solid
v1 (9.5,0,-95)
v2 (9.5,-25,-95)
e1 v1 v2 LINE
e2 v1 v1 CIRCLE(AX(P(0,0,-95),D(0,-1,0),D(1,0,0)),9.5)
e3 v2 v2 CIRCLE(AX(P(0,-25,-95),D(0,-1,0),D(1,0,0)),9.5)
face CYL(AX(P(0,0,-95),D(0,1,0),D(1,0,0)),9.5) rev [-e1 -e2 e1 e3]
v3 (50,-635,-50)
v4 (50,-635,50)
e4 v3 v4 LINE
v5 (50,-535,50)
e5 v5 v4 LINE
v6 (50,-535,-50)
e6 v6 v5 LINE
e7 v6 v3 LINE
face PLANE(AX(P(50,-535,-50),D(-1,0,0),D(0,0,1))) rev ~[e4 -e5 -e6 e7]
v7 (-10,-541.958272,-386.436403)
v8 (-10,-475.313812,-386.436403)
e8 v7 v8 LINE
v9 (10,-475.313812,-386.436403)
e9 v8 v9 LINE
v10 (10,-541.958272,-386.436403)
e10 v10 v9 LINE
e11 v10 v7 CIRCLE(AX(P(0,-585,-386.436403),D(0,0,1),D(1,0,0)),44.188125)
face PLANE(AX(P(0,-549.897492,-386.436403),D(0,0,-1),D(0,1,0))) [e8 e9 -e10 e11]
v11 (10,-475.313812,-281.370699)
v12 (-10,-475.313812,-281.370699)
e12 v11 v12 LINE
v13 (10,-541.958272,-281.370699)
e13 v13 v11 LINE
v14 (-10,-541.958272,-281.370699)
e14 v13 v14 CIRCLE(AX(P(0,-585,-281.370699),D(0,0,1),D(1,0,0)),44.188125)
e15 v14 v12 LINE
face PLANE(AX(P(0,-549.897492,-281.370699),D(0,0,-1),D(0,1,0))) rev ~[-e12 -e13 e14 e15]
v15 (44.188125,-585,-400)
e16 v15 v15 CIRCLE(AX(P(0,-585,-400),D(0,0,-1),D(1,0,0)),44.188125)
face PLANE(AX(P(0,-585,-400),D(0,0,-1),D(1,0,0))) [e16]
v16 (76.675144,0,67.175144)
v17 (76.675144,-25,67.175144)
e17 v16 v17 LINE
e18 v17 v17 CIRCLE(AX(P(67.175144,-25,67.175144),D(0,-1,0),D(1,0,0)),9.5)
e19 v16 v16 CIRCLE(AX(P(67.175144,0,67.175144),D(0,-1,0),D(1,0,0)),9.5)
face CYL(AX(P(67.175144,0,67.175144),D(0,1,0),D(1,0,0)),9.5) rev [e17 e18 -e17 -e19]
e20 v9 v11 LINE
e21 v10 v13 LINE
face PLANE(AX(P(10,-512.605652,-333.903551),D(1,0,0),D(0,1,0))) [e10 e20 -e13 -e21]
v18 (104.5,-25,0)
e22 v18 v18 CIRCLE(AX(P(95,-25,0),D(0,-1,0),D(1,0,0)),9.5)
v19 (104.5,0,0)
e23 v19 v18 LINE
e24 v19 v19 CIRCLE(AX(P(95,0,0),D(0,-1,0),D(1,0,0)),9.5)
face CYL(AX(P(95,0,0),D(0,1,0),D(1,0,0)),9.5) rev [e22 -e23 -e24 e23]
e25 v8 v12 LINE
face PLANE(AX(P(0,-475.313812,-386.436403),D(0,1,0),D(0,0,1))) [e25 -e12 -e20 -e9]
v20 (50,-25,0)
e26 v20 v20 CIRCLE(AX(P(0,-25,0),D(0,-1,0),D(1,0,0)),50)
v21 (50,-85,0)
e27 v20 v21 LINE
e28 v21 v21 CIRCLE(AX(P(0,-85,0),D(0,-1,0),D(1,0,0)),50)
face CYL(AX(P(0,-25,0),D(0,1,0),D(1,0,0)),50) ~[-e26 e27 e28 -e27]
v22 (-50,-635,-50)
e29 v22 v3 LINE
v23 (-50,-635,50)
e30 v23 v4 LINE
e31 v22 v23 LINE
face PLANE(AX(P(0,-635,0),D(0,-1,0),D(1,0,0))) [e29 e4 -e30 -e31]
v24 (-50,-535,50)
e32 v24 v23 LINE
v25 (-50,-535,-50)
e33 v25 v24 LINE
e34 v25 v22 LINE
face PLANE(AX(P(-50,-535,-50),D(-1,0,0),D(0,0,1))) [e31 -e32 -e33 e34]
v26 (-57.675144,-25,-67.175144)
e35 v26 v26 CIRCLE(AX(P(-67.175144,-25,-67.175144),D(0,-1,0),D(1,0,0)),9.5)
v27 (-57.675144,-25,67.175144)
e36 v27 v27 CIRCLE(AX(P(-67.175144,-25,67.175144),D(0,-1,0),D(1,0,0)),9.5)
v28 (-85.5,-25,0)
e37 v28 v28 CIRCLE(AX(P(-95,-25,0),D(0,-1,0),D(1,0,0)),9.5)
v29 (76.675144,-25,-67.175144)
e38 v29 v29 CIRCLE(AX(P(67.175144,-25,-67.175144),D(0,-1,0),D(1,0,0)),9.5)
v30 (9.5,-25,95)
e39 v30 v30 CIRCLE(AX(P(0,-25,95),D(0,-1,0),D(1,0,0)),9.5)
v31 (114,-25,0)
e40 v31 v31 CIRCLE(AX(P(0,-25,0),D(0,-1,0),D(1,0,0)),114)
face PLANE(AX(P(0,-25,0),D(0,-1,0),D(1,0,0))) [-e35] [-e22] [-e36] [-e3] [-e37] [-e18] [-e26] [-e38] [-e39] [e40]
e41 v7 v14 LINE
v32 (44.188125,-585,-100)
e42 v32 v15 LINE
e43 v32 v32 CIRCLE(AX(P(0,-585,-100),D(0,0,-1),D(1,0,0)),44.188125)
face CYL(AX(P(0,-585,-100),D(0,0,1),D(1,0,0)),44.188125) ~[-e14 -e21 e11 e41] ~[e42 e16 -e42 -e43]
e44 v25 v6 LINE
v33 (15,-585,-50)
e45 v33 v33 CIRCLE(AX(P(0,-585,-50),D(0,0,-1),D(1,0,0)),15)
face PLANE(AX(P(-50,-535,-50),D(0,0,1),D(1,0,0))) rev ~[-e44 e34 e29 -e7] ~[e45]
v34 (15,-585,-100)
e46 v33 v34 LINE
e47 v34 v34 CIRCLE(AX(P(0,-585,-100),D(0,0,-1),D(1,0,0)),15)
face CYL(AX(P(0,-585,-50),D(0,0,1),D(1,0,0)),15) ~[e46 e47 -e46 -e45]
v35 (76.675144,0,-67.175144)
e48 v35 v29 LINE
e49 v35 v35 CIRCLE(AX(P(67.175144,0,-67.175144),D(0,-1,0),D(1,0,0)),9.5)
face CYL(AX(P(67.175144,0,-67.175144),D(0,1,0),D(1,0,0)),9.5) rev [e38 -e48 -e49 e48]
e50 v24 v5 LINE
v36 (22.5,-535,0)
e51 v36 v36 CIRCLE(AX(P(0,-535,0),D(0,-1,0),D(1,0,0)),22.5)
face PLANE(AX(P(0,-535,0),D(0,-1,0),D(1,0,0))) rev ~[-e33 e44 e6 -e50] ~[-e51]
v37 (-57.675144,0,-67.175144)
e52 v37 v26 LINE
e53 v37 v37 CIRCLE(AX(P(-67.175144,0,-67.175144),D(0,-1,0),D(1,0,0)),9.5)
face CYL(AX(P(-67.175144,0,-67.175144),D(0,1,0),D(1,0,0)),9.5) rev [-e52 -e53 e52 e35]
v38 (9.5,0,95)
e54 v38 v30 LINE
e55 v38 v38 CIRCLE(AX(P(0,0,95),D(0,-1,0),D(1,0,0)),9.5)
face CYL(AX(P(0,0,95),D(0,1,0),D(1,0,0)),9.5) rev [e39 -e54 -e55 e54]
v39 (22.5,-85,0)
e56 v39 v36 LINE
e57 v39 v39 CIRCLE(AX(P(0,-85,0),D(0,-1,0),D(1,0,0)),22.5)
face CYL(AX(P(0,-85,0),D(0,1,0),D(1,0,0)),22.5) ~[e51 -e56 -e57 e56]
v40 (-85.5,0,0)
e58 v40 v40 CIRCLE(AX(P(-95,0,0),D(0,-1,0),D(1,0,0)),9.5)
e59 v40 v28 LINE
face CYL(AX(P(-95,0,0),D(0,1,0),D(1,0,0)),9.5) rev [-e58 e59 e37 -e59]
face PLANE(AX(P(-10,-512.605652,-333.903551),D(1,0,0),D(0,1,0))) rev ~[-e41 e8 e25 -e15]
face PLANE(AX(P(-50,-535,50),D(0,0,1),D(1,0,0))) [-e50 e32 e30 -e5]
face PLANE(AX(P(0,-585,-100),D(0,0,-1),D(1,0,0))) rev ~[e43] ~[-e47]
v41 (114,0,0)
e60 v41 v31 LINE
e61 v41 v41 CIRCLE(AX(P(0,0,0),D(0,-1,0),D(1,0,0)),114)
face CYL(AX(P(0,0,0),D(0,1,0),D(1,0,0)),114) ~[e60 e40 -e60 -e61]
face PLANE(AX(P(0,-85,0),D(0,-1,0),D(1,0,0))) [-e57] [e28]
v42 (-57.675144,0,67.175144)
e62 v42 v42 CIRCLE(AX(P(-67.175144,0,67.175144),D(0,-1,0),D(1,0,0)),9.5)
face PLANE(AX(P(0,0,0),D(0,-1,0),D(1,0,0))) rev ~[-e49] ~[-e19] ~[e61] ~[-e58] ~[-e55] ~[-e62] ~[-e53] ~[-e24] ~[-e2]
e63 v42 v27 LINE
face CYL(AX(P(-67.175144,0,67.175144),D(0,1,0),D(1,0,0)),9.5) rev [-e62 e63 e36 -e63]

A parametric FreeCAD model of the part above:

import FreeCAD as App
import Part
import Sketcher
from FreeCAD import Vector
Q = App.Units.Quantity

doc = App.newDocument("Part")
body = doc.addObject("PartDesign::Body", "Body")

# Sketch on XZ plane
sketch1 = body.newObject("Sketcher::SketchObject", "Sketch")
sketch1.AttachmentSupport = (doc.getObject("XZ_Plane"), [""])
sketch1.MapMode = "FlatFace"
sketch1.addGeometry(Part.Circle(Vector(0, 0, 0), Vector(0, 0, 1), 114), False)
sketch1.addGeometry(Part.Circle(Vector(-67.175144, -67.175144, 0), Vector(0, 0, 1), 9.5), False)
sketch1.addGeometry(Part.Circle(Vector(0, -95, 0), Vector(0, 0, 1), 9.5), False)
sketch1.addGeometry(Part.Circle(Vector(67.175144, -67.175144, 0), Vector(0, 0, 1), 9.5), False)
sketch1.addGeometry(Part.Circle(Vector(-95, 0, 0), Vector(0, 0, 1), 9.5), False)
sketch1.addGeometry(Part.Circle(Vector(-67.175144, 67.175144, 0), Vector(0, 0, 1), 9.5), False)
sketch1.addGeometry(Part.Circle(Vector(95, 0, 0), Vector(0, 0, 1), 9.5), False)
sketch1.addGeometry(Part.Circle(Vector(0, 95, 0), Vector(0, 0, 1), 9.5), False)
sketch1.addGeometry(Part.Circle(Vector(67.175144, 67.175144, 0), Vector(0, 0, 1), 9.5), False)
sketch1.addConstraint(Sketcher.Constraint("Coincident", 0, 3, -1, 1))
sketch1.addConstraint(Sketcher.Constraint("Equal", 1, 2))
sketch1.addConstraint(Sketcher.Constraint("Equal", 2, 3))
sketch1.addConstraint(Sketcher.Constraint("Equal", 3, 4))
sketch1.addConstraint(Sketcher.Constraint("Equal", 4, 5))
sketch1.addConstraint(Sketcher.Constraint("Equal", 5, 6))
sketch1.addConstraint(Sketcher.Constraint("Equal", 6, 7))
sketch1.addConstraint(Sketcher.Constraint("Equal", 7, 8))
sketch1.addConstraint(Sketcher.Constraint("Symmetric", 3, 3, 5, 3, -1, 1))
sketch1.addConstraint(Sketcher.Constraint("Symmetric", 4, 3, 6, 3, -1, 1))
sketch1.addConstraint(Sketcher.Constraint("Symmetric", 2, 3, 7, 3, -1, 1))
sketch1.addConstraint(Sketcher.Constraint("Symmetric", 1, 3, 8, 3, -1, 1))
sketch1.addConstraint(Sketcher.Constraint("Symmetric", 1, 3, 3, 3, -2))
sketch1.addConstraint(Sketcher.Constraint("PointOnObject", 2, 3, -2))
sketch1.addConstraint(Sketcher.Constraint("PointOnObject", 4, 3, -1))
sketch1.addConstraint(Sketcher.Constraint("Diameter", 0, Q("228 mm")))
sketch1.addConstraint(Sketcher.Constraint("Diameter", 1, Q("19 mm")))
sketch1.addConstraint(Sketcher.Constraint("DistanceY", 2, 3, -1, 1, Q("95 mm")))
sketch1.addConstraint(Sketcher.Constraint("DistanceX", 4, 3, -1, 1, Q("95 mm")))
sketch1.addConstraint(Sketcher.Constraint("DistanceX", 1, 3, 3, 3, Q("134.350288 mm")))
sketch1.addConstraint(Sketcher.Constraint("DistanceY", 1, 3, 5, 3, Q("134.350288 mm")))
pad1 = body.newObject("PartDesign::Pad", "Pad")
pad1.Profile = sketch1
pad1.Length = 25

# Sketch on XZ plane
sketch2 = body.newObject("Sketcher::SketchObject", "Sketch001")
sketch2.AttachmentSupport = (doc.getObject("XZ_Plane"), [""])
sketch2.MapMode = "FlatFace"
sketch2.AttachmentOffset = App.Placement(Vector(0, 0, 25), App.Rotation())
sketch2.addGeometry(Part.Circle(Vector(0, 0, 0), Vector(0, 0, 1), 50), False)
sketch2.addConstraint(Sketcher.Constraint("Coincident", 0, 3, -1, 1))
sketch2.addConstraint(Sketcher.Constraint("Diameter", 0, Q("100 mm")))
pad2 = body.newObject("PartDesign::Pad", "Pad001")
pad2.Profile = sketch2
pad2.Length = 60

# Sketch on XZ plane
sketch3 = body.newObject("Sketcher::SketchObject", "Sketch002")
sketch3.AttachmentSupport = (doc.getObject("XZ_Plane"), [""])
sketch3.MapMode = "FlatFace"
sketch3.AttachmentOffset = App.Placement(Vector(0, 0, 85), App.Rotation())
sketch3.addGeometry(Part.Circle(Vector(0, 0, 0), Vector(0, 0, 1), 22.5), False)
sketch3.addConstraint(Sketcher.Constraint("Coincident", 0, 3, -1, 1))
sketch3.addConstraint(Sketcher.Constraint("Diameter", 0, Q("45 mm")))
pad3 = body.newObject("PartDesign::Pad", "Pad002")
pad3.Profile = sketch3
pad3.Length = 450

# Sketch on XZ plane
sketch4 = body.newObject("Sketcher::SketchObject", "Sketch003")
sketch4.AttachmentSupport = (doc.getObject("XZ_Plane"), [""])
sketch4.MapMode = "FlatFace"
sketch4.AttachmentOffset = App.Placement(Vector(0, 0, 535), App.Rotation())
sketch4.addGeometry(Part.LineSegment(Vector(-50, 50, 0), Vector(-50, -50, 0)), False)
sketch4.addGeometry(Part.LineSegment(Vector(-50, -50, 0), Vector(50, -50, 0)), False)
sketch4.addGeometry(Part.LineSegment(Vector(50, -50, 0), Vector(50, 50, 0)), False)
sketch4.addGeometry(Part.LineSegment(Vector(50, 50, 0), Vector(-50, 50, 0)), False)
sketch4.addConstraint(Sketcher.Constraint("Coincident", 0, 2, 1, 1))
sketch4.addConstraint(Sketcher.Constraint("Coincident", 1, 2, 2, 1))
sketch4.addConstraint(Sketcher.Constraint("Coincident", 2, 2, 3, 1))
sketch4.addConstraint(Sketcher.Constraint("Coincident", 3, 2, 0, 1))
sketch4.addConstraint(Sketcher.Constraint("Vertical", 0))
sketch4.addConstraint(Sketcher.Constraint("Horizontal", 1))
sketch4.addConstraint(Sketcher.Constraint("Vertical", 2))
sketch4.addConstraint(Sketcher.Constraint("Horizontal", 3))
sketch4.addConstraint(Sketcher.Constraint("Symmetric", 0, 2, 2, 2, -1, 1))
sketch4.addConstraint(Sketcher.Constraint("Equal", 3, 0))
sketch4.addConstraint(Sketcher.Constraint("DistanceX", 1, 1, 1, 2, Q("100 mm")))
pad4 = body.newObject("PartDesign::Pad", "Pad003")
pad4.Profile = sketch4
pad4.Length = 100

# Sketch on XY plane
sketch5 = body.newObject("Sketcher::SketchObject", "Sketch004")
sketch5.AttachmentSupport = (doc.getObject("XY_Plane"), [""])
sketch5.MapMode = "FlatFace"
sketch5.AttachmentOffset = App.Placement(Vector(0, 0, -50), App.Rotation())
sketch5.addGeometry(Part.Circle(Vector(0, -585, 0), Vector(0, 0, 1), 15), False)
sketch5.addConstraint(Sketcher.Constraint("PointOnObject", 0, 3, -2))
sketch5.addConstraint(Sketcher.Constraint("Diameter", 0, Q("30 mm")))
sketch5.addConstraint(Sketcher.Constraint("DistanceY", 0, 3, -1, 1, Q("585 mm")))
pad5 = body.newObject("PartDesign::Pad", "Pad004")
pad5.Profile = sketch5
pad5.Length = 50
pad5.Reversed = True

# Sketch on XY plane
sketch6 = body.newObject("Sketcher::SketchObject", "Sketch005")
sketch6.AttachmentSupport = (doc.getObject("XY_Plane"), [""])
sketch6.MapMode = "FlatFace"
sketch6.AttachmentOffset = App.Placement(Vector(0, 0, -100), App.Rotation())
sketch6.addGeometry(Part.Circle(Vector(0, -585, 0), Vector(0, 0, 1), 44.188125), False)
sketch6.addConstraint(Sketcher.Constraint("PointOnObject", 0, 3, -2))
sketch6.addConstraint(Sketcher.Constraint("DistanceY", 0, 3, -1, 1, Q("585 mm")))
sketch6.addConstraint(Sketcher.Constraint("Diameter", 0, Q("88.37625 mm")))
pad6 = body.newObject("PartDesign::Pad", "Pad005")
pad6.Profile = sketch6
pad6.Length = 300
pad6.Reversed = True

# Sketch on YZ plane
sketch7 = body.newObject("Sketcher::SketchObject", "Sketch006")
sketch7.AttachmentSupport = (doc.getObject("YZ_Plane"), [""])
sketch7.MapMode = "FlatFace"
sketch7.addGeometry(Part.LineSegment(Vector(-549.897492, -281.370699, 0), Vector(-549.897492, -386.436403, 0)), False)
sketch7.addGeometry(Part.LineSegment(Vector(-549.897492, -386.436403, 0), Vector(-475.313812, -386.436403, 0)), False)
sketch7.addGeometry(Part.LineSegment(Vector(-475.313812, -386.436403, 0), Vector(-475.313812, -281.370699, 0)), False)
sketch7.addGeometry(Part.LineSegment(Vector(-475.313812, -281.370699, 0), Vector(-549.897492, -281.370699, 0)), False)
sketch7.addConstraint(Sketcher.Constraint("Coincident", 0, 2, 1, 1))
sketch7.addConstraint(Sketcher.Constraint("Coincident", 1, 2, 2, 1))
sketch7.addConstraint(Sketcher.Constraint("Coincident", 2, 2, 3, 1))
sketch7.addConstraint(Sketcher.Constraint("Coincident", 3, 2, 0, 1))
sketch7.addConstraint(Sketcher.Constraint("Vertical", 0))
sketch7.addConstraint(Sketcher.Constraint("Horizontal", 1))
sketch7.addConstraint(Sketcher.Constraint("Vertical", 2))
sketch7.addConstraint(Sketcher.Constraint("Horizontal", 3))
sketch7.addConstraint(Sketcher.Constraint("DistanceX", 1, 1, 1, 2, Q("74.58368 mm")))
sketch7.addConstraint(Sketcher.Constraint("DistanceY", 2, 2, -1, 1, Q("281.370699 mm")))
sketch7.addConstraint(Sketcher.Constraint("DistanceY", 0, 2, 0, 1, Q("105.065704 mm")))
sketch7.addConstraint(Sketcher.Constraint("DistanceX", 1, 2, -1, 1, Q("475.313812 mm")))
pad7 = body.newObject("PartDesign::Pad", "Pad006")
pad7.Profile = sketch7
pad7.Length = 20
pad7.Midplane = True

doc.recompute()
